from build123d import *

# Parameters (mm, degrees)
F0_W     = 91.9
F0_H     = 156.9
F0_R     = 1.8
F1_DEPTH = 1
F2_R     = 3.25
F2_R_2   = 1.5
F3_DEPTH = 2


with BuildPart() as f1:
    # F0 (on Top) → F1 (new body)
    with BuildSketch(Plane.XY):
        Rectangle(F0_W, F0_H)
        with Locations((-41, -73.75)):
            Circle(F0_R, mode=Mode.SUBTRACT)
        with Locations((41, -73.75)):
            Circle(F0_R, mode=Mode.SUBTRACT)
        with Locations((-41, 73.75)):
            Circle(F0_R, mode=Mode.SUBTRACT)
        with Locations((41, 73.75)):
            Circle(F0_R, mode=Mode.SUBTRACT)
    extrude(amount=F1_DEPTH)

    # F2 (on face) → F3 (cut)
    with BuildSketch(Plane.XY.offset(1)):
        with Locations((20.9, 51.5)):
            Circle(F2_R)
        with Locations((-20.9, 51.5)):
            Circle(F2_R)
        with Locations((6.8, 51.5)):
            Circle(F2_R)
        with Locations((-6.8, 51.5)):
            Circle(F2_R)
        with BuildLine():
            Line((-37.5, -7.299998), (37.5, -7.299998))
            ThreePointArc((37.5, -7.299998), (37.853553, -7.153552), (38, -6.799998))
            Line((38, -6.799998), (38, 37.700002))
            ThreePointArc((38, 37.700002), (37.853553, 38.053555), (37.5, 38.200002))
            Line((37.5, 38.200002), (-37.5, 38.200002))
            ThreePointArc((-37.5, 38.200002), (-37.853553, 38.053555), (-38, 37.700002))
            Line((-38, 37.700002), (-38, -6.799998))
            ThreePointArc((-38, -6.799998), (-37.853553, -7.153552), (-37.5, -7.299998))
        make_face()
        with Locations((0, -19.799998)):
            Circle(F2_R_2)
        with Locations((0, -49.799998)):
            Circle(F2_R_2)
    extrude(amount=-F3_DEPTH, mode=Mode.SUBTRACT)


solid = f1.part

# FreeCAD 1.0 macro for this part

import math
import FreeCAD as App
import Part
import Sketcher


def add_polygon(sketch, points):
    """Adds a closed chain of lines whose ends are joined by coincident constraints."""
    first, n = sketch.GeometryCount, len(points)
    for a, b in zip(points, points[1:] + points[:1]):
        sketch.addGeometry(Part.LineSegment(App.Vector(*a, 0), App.Vector(*b, 0)), False)
    for i in range(n):
        sketch.addConstraint(Sketcher.Constraint("Coincident", first + i, 2, first + (i + 1) % n, 1))

doc = App.newDocument("Part")
body = doc.addObject("PartDesign::Body", "Body")

sketch1 = body.newObject("Sketcher::SketchObject", "Sketch")
sketch1.AttachmentSupport = (doc.getObject("XY_Plane"), [""])
sketch1.MapMode = "FlatFace"
add_polygon(sketch1, [(-46, 78.5), (-46, -78.5), (46, -78.5), (46, 78.5)])
sketch1.addGeometry(Part.Circle(App.Vector(-41, -73.8, 0), App.Vector(0, 0, 1), 1.8), False)
sketch1.addGeometry(Part.Circle(App.Vector(41, -73.8, 0), App.Vector(0, 0, 1), 1.8), False)
sketch1.addGeometry(Part.Circle(App.Vector(-41, 73.8, 0), App.Vector(0, 0, 1), 1.8), False)
sketch1.addGeometry(Part.Circle(App.Vector(41, 73.8, 0), App.Vector(0, 0, 1), 1.8), False)
sketch1.addConstraint([
    Sketcher.Constraint("Vertical", 0),
    Sketcher.Constraint("Horizontal", 1),
    Sketcher.Constraint("Vertical", 2),
    Sketcher.Constraint("Horizontal", 3),
    Sketcher.Constraint("Equal", 4, 5),
    Sketcher.Constraint("Equal", 5, 6),
    Sketcher.Constraint("Equal", 6, 7),
    Sketcher.Constraint("Symmetric", 5, 3, 6, 3, -1, 1),
    Sketcher.Constraint("Symmetric", 4, 3, 7, 3, -1, 1),
    Sketcher.Constraint("Symmetric", 0, 2, 2, 2, -1, 1),
    Sketcher.Constraint("Symmetric", 4, 3, 5, 3, -2),
    Sketcher.Constraint("Diameter", 4, 3.6),
    Sketcher.Constraint("DistanceX", 1, 1, 1, 2, 91.9),
    Sketcher.Constraint("DistanceY", 0, 2, 0, 1, 156.9),
    Sketcher.Constraint("DistanceX", 4, 3, -1, 1, 41.0),
    Sketcher.Constraint("DistanceY", 4, 3, 6, 3, 147.5),
])
pad1 = body.newObject("PartDesign::Pad", "Pad")
pad1.Profile = sketch1
pad1.Length = 1

sketch2 = body.newObject("Sketcher::SketchObject", "Sketch001")
sketch2.AttachmentSupport = (doc.getObject("XY_Plane"), [""])
sketch2.MapMode = "FlatFace"
sketch2.AttachmentOffset = App.Placement(App.Vector(0, 0, 1), App.Rotation())
sketch2.addGeometry([
    Part.Circle(App.Vector(20.9, 51.5, 0), App.Vector(0, 0, 1), 3.25),
    Part.Circle(App.Vector(-20.9, 51.5, 0), App.Vector(0, 0, 1), 3.25),
    Part.Circle(App.Vector(6.8, 51.5, 0), App.Vector(0, 0, 1), 3.25),
    Part.Circle(App.Vector(-6.8, 51.5, 0), App.Vector(0, 0, 1), 3.25),
    Part.LineSegment(App.Vector(-37.5, -7.3, 0), App.Vector(37.5, -7.3, 0)),
    Part.ArcOfCircle(Part.Circle(App.Vector(37.5, -6.8, 0), App.Vector(0, 0, 1), 0.5), math.radians(-90), math.radians(0)),
    Part.LineSegment(App.Vector(38, -6.8, 0), App.Vector(38, 37.7, 0)),
    Part.ArcOfCircle(Part.Circle(App.Vector(37.5, 37.7, 0), App.Vector(0, 0, 1), 0.5), math.radians(0), math.radians(90)),
    Part.LineSegment(App.Vector(37.5, 38.2, 0), App.Vector(-37.5, 38.2, 0)),
    Part.ArcOfCircle(Part.Circle(App.Vector(-37.5, 37.7, 0), App.Vector(0, 0, 1), 0.5), math.radians(90), math.radians(180)),
    Part.LineSegment(App.Vector(-38, 37.7, 0), App.Vector(-38, -6.8, 0)),
    Part.ArcOfCircle(Part.Circle(App.Vector(-37.5, -6.8, 0), App.Vector(0, 0, 1), 0.5), math.radians(180), math.radians(270)),
    Part.Circle(App.Vector(0, -19.8, 0), App.Vector(0, 0, 1), 1.5),
    Part.Circle(App.Vector(0, -49.8, 0), App.Vector(0, 0, 1), 1.5),
], False)
sketch2.addConstraint([
    Sketcher.Constraint("Tangent", 4, 2, 5, 1),
    Sketcher.Constraint("Tangent", 5, 2, 6, 1),
    Sketcher.Constraint("Coincident", 6, 2, 7, 1),
    Sketcher.Constraint("Coincident", 7, 2, 8, 1),
    Sketcher.Constraint("Coincident", 8, 2, 9, 1),
    Sketcher.Constraint("Coincident", 9, 2, 10, 1),
    Sketcher.Constraint("Tangent", 10, 2, 11, 1),
    Sketcher.Constraint("Tangent", 11, 2, 4, 1),
    Sketcher.Constraint("Horizontal", 4),
    Sketcher.Constraint("Vertical", 6),
    Sketcher.Constraint("Horizontal", 8),
    Sketcher.Constraint("Vertical", 10),
    Sketcher.Constraint("Equal", 0, 1),
    Sketcher.Constraint("Equal", 1, 2),
    Sketcher.Constraint("Equal", 2, 3),
    Sketcher.Constraint("Equal", 5, 7),
    Sketcher.Constraint("Equal", 7, 9),
    Sketcher.Constraint("Equal", 9, 11),
    Sketcher.Constraint("Equal", 12, 13),
    Sketcher.Constraint("Symmetric", 0, 3, 1, 3, -2),
    Sketcher.Constraint("Symmetric", 2, 3, 3, 3, -2),
    Sketcher.Constraint("Symmetric", 6, 2, 9, 2, -2),
    Sketcher.Constraint("PointOnObject", 12, 3, -2),
    Sketcher.Constraint("PointOnObject", 13, 3, -2),
    Sketcher.Constraint("Horizontal", 1, 3, 2, 3),
    Sketcher.Constraint("Horizontal", 9, 3, 6, 2),
    Sketcher.Constraint("Vertical", 4, 2, 7, 2),
    Sketcher.Constraint("Vertical", 11, 3, 8, 2),
    Sketcher.Constraint("Diameter", 12, 3.0),
    Sketcher.Constraint("Diameter", 0, 6.5),
    Sketcher.Constraint("Radius", 5, 0.5),
    Sketcher.Constraint("DistanceX", 4, 1, 4, 2, 75.0),
    Sketcher.Constraint("DistanceY", 6, 1, 6, 2, 44.5),
    Sketcher.Constraint("DistanceY", 12, 3, 5, 3, 13.0),
    Sketcher.Constraint("DistanceY", 13, 3, 12, 3, 30.0),
    Sketcher.Constraint("DistanceX", -1, 1, 0, 3, 20.9),
    Sketcher.Constraint("DistanceY", -1, 1, 0, 3, 51.5),
    Sketcher.Constraint("DistanceX", -1, 1, 2, 3, 6.8),
    Sketcher.Constraint("DistanceY", 5, 3, -1, 1, 6.799998),
])
pocket1 = body.newObject("PartDesign::Pocket", "Pocket")
pocket1.Profile = sketch2
pocket1.Length = 2

doc.recompute()
